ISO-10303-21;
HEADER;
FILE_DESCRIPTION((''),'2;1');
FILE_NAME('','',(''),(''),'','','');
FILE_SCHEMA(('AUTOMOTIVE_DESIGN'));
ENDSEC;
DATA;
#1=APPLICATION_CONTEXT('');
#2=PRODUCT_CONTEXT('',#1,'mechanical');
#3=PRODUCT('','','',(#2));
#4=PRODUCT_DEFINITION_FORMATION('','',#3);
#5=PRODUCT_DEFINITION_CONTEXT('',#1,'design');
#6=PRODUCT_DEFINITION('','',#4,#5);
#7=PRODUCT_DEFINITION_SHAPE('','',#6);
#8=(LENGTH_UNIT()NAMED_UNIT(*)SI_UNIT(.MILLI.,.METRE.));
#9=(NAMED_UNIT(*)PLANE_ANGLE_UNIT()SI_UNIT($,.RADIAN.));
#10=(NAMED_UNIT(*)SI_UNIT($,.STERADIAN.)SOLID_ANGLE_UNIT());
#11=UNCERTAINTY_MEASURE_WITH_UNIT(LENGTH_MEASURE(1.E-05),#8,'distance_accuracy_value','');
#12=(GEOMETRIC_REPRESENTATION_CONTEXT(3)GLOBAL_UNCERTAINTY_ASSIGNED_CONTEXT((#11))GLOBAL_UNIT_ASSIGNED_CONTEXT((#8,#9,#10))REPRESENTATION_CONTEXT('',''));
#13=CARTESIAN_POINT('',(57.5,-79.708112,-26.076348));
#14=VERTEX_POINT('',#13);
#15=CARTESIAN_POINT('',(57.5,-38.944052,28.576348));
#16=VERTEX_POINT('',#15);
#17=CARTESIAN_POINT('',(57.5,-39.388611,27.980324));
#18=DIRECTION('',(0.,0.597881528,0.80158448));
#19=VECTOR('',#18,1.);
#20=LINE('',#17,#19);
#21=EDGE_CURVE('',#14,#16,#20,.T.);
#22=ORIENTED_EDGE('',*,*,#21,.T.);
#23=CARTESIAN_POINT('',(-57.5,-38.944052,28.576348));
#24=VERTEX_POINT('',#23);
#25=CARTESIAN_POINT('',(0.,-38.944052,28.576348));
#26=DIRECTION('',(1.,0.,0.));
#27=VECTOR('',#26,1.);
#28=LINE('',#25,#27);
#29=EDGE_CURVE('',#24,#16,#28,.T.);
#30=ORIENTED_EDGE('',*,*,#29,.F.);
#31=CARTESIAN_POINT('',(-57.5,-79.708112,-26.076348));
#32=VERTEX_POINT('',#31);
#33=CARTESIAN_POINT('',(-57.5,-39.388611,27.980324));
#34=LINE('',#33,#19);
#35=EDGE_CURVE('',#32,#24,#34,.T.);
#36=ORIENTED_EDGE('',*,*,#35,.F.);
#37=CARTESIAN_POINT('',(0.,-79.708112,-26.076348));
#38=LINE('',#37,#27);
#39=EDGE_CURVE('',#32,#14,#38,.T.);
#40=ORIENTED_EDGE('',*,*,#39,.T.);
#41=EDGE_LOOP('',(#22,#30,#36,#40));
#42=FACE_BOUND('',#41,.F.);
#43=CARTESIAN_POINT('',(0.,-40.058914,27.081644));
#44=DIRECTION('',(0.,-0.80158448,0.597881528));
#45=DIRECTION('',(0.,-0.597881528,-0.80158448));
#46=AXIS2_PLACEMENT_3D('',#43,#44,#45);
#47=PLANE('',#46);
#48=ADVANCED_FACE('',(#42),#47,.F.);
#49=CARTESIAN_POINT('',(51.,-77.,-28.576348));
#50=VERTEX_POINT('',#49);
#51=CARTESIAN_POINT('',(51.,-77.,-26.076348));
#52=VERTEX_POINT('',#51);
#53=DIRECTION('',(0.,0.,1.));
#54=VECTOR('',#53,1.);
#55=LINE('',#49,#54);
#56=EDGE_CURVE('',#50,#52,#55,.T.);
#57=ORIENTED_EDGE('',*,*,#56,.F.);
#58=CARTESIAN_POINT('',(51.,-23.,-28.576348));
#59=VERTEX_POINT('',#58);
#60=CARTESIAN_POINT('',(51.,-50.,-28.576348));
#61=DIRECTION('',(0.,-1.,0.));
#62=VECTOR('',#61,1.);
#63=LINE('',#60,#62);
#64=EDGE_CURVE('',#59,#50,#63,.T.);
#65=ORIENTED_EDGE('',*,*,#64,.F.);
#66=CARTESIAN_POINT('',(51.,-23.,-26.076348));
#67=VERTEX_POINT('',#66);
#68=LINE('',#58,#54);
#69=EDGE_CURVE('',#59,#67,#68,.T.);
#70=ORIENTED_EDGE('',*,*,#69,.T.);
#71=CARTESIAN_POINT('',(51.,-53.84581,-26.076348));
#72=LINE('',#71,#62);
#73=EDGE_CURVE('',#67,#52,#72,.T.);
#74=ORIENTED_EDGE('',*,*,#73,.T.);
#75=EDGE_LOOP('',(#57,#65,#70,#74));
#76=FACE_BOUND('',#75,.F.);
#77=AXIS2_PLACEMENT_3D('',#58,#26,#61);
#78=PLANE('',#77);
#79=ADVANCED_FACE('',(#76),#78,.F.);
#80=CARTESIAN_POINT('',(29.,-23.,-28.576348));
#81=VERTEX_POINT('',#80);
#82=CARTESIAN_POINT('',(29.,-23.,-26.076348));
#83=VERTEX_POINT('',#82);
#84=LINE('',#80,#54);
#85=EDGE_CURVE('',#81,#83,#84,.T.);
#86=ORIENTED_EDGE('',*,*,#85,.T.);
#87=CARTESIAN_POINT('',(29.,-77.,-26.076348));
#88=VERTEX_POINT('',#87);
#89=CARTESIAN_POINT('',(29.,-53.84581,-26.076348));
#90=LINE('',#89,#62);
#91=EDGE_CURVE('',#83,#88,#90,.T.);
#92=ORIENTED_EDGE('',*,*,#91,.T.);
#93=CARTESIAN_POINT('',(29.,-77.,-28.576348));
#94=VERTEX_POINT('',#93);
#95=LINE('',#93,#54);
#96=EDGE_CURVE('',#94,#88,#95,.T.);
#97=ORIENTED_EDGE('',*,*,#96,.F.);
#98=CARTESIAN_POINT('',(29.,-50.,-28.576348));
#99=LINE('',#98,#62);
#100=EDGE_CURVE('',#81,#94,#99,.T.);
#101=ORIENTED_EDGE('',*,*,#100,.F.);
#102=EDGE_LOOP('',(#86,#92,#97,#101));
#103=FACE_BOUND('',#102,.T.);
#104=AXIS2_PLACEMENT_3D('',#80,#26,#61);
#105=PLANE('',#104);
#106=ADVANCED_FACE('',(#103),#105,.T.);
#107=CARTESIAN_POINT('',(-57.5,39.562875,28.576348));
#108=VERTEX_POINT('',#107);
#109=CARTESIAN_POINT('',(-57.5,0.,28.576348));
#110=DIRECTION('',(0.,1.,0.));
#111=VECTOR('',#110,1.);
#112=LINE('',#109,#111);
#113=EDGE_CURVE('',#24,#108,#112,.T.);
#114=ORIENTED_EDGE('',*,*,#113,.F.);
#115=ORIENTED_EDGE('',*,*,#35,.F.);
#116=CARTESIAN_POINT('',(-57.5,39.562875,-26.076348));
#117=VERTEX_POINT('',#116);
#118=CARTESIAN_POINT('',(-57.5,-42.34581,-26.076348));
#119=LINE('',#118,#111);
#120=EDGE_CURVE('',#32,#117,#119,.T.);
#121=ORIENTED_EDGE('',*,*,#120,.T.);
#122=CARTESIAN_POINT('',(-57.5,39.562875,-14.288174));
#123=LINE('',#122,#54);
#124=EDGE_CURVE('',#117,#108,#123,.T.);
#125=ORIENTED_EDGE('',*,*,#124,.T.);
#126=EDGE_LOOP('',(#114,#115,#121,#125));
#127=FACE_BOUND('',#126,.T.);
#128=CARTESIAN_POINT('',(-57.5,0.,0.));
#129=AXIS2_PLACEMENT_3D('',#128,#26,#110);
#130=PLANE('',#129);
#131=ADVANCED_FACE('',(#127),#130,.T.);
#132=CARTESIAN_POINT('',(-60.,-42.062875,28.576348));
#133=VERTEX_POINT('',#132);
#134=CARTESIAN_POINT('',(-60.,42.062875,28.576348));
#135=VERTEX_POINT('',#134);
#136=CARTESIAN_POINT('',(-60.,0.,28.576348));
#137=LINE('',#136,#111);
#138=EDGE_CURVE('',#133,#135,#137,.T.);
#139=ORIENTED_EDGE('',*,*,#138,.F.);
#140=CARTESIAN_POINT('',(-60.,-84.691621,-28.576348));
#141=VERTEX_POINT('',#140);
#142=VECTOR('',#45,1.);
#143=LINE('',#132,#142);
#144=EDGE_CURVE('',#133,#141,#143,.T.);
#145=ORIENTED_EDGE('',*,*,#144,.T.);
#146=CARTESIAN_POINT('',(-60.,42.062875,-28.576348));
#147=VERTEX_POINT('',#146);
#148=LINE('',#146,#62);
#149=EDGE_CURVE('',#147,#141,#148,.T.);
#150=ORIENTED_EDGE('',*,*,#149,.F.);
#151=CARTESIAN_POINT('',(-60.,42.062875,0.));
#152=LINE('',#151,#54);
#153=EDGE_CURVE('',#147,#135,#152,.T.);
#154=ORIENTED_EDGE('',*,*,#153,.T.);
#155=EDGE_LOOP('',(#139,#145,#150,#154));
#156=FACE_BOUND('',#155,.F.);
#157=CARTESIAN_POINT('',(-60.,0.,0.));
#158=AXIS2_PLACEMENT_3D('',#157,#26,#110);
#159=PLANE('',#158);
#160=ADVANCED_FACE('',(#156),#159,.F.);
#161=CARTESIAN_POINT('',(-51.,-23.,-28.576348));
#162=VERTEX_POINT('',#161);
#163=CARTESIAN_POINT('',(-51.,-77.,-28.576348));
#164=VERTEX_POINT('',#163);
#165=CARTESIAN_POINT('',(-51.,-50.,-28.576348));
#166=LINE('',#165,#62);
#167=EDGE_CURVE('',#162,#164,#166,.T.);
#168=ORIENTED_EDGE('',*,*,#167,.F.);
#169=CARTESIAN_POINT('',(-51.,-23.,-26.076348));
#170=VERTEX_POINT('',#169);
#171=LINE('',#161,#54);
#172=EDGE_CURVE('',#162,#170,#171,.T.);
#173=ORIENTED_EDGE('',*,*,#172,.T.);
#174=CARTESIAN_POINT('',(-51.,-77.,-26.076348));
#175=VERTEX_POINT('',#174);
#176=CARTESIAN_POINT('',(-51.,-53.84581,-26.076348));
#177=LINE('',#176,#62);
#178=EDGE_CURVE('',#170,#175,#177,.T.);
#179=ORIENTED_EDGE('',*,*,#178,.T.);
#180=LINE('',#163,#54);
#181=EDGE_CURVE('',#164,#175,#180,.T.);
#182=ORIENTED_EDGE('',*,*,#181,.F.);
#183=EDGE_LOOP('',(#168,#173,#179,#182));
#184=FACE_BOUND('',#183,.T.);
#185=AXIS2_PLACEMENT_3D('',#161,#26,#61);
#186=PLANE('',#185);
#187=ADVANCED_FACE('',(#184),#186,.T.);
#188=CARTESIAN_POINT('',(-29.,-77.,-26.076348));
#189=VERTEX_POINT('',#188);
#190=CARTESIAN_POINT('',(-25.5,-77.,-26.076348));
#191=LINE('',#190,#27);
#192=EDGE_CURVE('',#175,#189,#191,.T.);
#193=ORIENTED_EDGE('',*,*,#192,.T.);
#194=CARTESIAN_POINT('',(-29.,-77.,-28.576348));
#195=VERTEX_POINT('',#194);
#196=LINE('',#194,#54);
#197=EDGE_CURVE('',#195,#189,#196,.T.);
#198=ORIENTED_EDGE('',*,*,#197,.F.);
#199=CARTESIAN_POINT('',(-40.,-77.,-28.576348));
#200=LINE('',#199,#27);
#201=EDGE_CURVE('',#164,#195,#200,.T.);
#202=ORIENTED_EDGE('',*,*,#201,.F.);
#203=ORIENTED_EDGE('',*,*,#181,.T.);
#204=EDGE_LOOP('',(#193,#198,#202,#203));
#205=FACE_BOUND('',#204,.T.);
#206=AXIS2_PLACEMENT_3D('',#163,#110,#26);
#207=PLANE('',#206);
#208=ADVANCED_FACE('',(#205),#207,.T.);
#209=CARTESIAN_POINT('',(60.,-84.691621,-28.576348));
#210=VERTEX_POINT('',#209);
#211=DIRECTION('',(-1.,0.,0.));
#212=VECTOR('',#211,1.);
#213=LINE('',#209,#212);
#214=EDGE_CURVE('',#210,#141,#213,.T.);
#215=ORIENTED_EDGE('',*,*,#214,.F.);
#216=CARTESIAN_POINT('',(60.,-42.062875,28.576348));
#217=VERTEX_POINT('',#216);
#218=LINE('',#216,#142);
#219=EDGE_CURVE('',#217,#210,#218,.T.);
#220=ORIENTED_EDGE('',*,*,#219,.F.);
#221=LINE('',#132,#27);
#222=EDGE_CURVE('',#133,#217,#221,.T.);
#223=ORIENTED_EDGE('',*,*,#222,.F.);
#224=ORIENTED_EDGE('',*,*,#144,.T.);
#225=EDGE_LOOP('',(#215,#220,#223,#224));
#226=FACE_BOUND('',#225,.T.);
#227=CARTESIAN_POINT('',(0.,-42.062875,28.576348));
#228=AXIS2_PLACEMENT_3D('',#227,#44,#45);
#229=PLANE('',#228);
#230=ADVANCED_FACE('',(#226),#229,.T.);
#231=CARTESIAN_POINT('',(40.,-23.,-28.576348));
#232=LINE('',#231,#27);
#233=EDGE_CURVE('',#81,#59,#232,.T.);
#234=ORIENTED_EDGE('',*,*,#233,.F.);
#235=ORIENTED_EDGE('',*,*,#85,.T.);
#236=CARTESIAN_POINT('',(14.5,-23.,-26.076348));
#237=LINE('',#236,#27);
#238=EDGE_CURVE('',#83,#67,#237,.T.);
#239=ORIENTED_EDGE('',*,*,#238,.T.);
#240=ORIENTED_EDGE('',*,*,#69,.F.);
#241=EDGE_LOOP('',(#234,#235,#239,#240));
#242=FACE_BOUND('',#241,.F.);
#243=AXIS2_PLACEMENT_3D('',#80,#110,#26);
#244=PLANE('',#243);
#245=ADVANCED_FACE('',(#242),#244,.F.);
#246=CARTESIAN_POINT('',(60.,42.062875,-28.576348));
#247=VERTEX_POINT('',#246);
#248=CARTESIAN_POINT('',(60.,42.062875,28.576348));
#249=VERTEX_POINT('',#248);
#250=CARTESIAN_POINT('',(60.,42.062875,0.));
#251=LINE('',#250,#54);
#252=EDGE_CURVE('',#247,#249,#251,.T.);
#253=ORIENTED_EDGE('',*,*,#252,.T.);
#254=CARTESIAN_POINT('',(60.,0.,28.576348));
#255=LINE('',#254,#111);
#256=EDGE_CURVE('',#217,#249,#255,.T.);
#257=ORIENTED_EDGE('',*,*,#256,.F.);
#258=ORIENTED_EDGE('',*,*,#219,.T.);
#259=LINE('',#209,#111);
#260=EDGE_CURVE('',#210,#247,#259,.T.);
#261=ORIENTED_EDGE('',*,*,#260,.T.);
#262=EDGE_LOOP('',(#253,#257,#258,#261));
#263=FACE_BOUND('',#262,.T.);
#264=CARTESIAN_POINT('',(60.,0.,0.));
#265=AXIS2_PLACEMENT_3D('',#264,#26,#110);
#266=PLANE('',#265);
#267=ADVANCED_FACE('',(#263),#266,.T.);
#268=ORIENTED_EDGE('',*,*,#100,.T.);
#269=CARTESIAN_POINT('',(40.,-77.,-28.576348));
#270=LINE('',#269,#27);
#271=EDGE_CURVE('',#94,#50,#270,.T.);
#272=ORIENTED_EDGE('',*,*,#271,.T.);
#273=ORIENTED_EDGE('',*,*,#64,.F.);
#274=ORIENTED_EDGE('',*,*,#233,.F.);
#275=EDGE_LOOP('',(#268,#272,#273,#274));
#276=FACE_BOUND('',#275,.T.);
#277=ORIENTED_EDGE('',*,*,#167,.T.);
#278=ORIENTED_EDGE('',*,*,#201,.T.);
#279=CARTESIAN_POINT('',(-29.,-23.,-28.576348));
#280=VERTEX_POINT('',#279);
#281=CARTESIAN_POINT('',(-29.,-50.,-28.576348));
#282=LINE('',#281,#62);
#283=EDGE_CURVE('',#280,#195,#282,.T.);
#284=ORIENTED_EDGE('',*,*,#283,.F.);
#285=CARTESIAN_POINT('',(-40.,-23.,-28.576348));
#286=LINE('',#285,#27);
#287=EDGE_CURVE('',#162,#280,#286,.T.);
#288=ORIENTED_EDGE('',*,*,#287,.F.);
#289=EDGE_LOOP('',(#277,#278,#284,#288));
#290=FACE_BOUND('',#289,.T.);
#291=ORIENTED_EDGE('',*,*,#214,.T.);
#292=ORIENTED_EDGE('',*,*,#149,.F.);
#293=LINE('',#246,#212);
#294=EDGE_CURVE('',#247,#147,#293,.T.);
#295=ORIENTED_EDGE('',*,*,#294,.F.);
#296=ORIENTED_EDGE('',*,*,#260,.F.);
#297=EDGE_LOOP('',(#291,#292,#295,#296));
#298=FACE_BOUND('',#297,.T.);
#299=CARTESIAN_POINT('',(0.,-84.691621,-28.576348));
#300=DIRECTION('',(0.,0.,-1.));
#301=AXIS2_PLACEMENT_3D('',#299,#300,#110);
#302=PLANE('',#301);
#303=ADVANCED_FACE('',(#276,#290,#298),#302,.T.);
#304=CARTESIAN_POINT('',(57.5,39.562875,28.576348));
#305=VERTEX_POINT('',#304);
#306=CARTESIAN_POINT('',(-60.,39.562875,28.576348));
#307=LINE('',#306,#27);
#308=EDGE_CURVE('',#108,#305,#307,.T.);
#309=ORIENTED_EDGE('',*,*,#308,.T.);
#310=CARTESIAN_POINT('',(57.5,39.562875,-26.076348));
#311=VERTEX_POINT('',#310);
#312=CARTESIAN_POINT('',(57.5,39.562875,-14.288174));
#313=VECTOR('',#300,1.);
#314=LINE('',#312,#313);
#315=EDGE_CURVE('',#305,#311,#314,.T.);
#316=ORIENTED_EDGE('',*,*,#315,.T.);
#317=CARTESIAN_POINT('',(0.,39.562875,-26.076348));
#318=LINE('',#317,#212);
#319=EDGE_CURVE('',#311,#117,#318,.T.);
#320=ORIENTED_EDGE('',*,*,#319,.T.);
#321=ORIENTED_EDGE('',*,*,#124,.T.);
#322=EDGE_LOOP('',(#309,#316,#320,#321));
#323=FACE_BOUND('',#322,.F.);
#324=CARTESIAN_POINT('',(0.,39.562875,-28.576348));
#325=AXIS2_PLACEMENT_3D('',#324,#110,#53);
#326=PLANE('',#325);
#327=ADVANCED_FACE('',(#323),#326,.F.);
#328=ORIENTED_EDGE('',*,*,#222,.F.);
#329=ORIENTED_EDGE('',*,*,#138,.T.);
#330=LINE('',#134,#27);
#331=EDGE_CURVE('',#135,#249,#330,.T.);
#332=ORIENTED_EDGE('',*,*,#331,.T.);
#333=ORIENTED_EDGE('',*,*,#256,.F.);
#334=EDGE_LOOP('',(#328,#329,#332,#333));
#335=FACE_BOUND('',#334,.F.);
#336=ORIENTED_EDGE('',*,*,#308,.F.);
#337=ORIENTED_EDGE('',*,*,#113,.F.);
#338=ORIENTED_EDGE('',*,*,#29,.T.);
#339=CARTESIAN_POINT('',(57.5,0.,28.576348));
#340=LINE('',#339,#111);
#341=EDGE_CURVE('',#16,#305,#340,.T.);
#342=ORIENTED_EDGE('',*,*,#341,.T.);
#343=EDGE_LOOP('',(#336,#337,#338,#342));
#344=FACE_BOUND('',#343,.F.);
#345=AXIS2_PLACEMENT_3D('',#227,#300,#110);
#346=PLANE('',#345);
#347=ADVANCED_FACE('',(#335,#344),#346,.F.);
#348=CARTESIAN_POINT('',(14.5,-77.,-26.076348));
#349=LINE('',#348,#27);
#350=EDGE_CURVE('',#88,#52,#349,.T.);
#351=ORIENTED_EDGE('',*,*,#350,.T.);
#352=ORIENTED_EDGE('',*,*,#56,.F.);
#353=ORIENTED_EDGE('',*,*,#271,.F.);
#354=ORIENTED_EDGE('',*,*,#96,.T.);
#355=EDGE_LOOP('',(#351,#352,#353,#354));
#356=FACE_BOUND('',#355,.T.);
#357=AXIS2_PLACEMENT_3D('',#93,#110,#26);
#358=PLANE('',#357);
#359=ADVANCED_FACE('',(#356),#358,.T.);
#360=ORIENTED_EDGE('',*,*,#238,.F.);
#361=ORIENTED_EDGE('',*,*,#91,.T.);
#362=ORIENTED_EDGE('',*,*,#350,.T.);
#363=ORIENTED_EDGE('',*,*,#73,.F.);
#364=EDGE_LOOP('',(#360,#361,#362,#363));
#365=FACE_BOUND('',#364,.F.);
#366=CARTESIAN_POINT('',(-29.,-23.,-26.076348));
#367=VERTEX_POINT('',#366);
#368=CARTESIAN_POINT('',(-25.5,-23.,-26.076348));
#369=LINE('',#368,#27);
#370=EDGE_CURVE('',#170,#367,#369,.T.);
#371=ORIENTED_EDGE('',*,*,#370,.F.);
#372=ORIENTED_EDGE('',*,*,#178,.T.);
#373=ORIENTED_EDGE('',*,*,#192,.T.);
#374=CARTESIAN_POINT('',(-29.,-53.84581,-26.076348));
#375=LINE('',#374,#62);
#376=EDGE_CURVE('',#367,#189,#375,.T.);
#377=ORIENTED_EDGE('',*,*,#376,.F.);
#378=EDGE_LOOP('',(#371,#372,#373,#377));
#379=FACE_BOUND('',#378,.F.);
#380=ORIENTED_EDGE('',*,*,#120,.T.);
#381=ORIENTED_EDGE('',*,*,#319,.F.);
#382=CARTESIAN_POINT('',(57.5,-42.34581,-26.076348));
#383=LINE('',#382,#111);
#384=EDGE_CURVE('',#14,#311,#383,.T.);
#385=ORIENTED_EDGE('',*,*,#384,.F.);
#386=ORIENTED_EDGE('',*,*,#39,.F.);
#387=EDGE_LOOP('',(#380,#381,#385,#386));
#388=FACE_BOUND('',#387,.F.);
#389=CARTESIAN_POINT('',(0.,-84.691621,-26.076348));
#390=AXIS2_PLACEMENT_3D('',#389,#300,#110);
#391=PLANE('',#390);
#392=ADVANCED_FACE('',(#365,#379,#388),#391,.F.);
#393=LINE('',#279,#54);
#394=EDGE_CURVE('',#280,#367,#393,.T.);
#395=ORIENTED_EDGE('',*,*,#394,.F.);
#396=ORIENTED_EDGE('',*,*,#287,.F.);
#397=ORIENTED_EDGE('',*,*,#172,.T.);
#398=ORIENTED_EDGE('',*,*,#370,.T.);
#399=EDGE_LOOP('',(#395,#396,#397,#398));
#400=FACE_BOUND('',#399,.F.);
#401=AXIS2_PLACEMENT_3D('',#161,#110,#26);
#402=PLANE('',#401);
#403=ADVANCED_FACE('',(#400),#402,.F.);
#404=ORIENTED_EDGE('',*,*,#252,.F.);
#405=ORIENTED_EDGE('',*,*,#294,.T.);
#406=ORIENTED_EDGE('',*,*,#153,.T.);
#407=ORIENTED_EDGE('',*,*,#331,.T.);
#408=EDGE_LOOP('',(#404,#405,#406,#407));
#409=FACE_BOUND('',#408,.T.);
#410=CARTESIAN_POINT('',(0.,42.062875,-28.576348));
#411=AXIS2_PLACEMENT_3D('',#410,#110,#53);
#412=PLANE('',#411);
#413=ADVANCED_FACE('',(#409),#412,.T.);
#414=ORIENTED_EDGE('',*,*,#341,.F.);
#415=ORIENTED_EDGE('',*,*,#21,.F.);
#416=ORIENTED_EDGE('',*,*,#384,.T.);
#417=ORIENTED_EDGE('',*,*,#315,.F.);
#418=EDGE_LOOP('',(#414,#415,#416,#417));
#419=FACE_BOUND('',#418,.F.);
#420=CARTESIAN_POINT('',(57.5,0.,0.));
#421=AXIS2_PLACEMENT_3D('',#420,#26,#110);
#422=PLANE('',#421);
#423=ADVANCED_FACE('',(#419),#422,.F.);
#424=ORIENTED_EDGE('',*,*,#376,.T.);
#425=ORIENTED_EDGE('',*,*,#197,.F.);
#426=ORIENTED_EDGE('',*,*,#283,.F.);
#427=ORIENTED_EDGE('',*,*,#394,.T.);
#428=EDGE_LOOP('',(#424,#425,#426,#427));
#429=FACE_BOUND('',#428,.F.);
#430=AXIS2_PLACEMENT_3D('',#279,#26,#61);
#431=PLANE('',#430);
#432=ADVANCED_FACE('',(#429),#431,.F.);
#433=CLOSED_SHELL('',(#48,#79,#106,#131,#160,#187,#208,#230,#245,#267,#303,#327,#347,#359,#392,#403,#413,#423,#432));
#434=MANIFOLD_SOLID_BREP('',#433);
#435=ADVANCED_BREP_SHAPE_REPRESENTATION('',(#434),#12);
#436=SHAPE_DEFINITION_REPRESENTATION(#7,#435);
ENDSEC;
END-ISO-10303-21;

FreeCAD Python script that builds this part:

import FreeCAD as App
import Part
import Sketcher

V = App.Vector


def faces_at(feature, points):
    """Names of the faces that lie closest to the given points."""
    faces = feature.Shape.Faces
    near = lambda p: min(range(len(faces)), key=lambda i: faces[i].distToShape(Part.Vertex(*p))[0])
    return sorted({f"Face{near(p) + 1}" for p in points})


def add_polygon(sketch, points):
    """Adds a closed chain of lines whose ends are joined by coincident constraints."""
    first, n = sketch.GeometryCount, len(points)
    for a, b in zip(points, points[1:] + points[:1]):
        sketch.addGeometry(Part.LineSegment(App.Vector(*a, 0), App.Vector(*b, 0)), False)
    for i in range(n):
        sketch.addConstraint(Sketcher.Constraint("Coincident", first + i, 2, first + (i + 1) % n, 1))

doc = App.newDocument("Part")
body = doc.addObject("PartDesign::Body", "Body")

sketch1 = body.newObject("Sketcher::SketchObject", "Sketch")
sketch1.AttachmentSupport = (doc.getObject("YZ_Plane"), [""])
sketch1.MapMode = "FlatFace"
add_polygon(sketch1, [(-42, -29), (-42, 29), (-85, -29)])
sketch1.addConstraint(Sketcher.Constraint("Vertical", 0))
sketch1.addConstraint(Sketcher.Constraint("Horizontal", 2))
sketch1.addConstraint(Sketcher.Constraint("DistanceX", 2, 1, 2, 2, 42.628746))
sketch1.addConstraint(Sketcher.Constraint("DistanceY", 0, 1, 0, 2, 57.152696))
sketch1.addConstraint(Sketcher.Constraint("DistanceX", 1, 2, -1, 1, 84.691621))
sketch1.addConstraint(Sketcher.Constraint("DistanceY", -1, 1, 0, 2, 28.576348))
pad1 = body.newObject("PartDesign::Pad", "Pad")
pad1.Profile = sketch1
pad1.Length = 120
pad1.Midplane = True

sketch2 = body.newObject("Sketcher::SketchObject", "Sketch001")
sketch2.AttachmentSupport = (doc.getObject("YZ_Plane"), [""])
sketch2.MapMode = "FlatFace"
add_polygon(sketch2, [(42, -29), (42, 29), (-42, 29), (-85, -29)])
sketch2.addConstraint(Sketcher.Constraint("Vertical", 0))
sketch2.addConstraint(Sketcher.Constraint("Horizontal", 1))
sketch2.addConstraint(Sketcher.Constraint("Horizontal", 3))
sketch2.addConstraint(Sketcher.Constraint("Symmetric", 1, 2, 3, 2, -1, 1))
sketch2.addConstraint(Sketcher.Constraint("DistanceX", 1, 2, 1, 1, 84.12575))
sketch2.addConstraint(Sketcher.Constraint("DistanceX", 3, 1, 3, 2, 126.754496))
sketch2.addConstraint(Sketcher.Constraint("DistanceY", 0, 1, 0, 2, 57.152696))
pad2 = body.newObject("PartDesign::Pad", "Pad001")
pad2.Profile = sketch2
pad2.Length = 120
pad2.Midplane = True
doc.recompute()

thickness = body.newObject("PartDesign::Thickness", "Thickness")
thickness.Base = (pad2, faces_at(pad2, [(0, 0, 28.576)]))
thickness.Value = 2.5
thickness.Reversed = True
thickness.Join = "Arc"

sketch3 = body.newObject("Sketcher::SketchObject", "Sketch002")
sketch3.AttachmentSupport = (doc.getObject("XY_Plane"), [""])
sketch3.MapMode = "FlatFace"
sketch3.AttachmentOffset = App.Placement(V(0, 0, -28.576348), App.Rotation())
add_polygon(sketch3, [(-51, -77), (-51, -23), (-29, -23), (-29, -77)])
add_polygon(sketch3, [(29, -77), (29, -23), (51, -23), (51, -77)])
sketch3.addConstraint(Sketcher.Constraint("Vertical", 0))
sketch3.addConstraint(Sketcher.Constraint("Horizontal", 1))
sketch3.addConstraint(Sketcher.Constraint("Vertical", 2))
sketch3.addConstraint(Sketcher.Constraint("Horizontal", 3))
sketch3.addConstraint(Sketcher.Constraint("Vertical", 4))
sketch3.addConstraint(Sketcher.Constraint("Horizontal", 5))
sketch3.addConstraint(Sketcher.Constraint("Vertical", 6))
sketch3.addConstraint(Sketcher.Constraint("Horizontal", 7))
sketch3.addConstraint(Sketcher.Constraint("Symmetric", 1, 2, 4, 2, -2))
sketch3.addConstraint(Sketcher.Constraint("Symmetric", 3, 2, 6, 2, -2))
sketch3.addConstraint(Sketcher.Constraint("DistanceX", 1, 1, 1, 2, 22.0))
sketch3.addConstraint(Sketcher.Constraint("DistanceY", 0, 1, 0, 2, 54.0))
sketch3.addConstraint(Sketcher.Constraint("DistanceX", 0, 2, -1, 1, 51.0))
sketch3.addConstraint(Sketcher.Constraint("DistanceY", 0, 2, -1, 1, 23.0))
pocket1 = body.newObject("PartDesign::Pocket", "Pocket")
pocket1.Profile = sketch3
pocket1.Length = 5
pocket1.Reversed = True

doc.recompute()
